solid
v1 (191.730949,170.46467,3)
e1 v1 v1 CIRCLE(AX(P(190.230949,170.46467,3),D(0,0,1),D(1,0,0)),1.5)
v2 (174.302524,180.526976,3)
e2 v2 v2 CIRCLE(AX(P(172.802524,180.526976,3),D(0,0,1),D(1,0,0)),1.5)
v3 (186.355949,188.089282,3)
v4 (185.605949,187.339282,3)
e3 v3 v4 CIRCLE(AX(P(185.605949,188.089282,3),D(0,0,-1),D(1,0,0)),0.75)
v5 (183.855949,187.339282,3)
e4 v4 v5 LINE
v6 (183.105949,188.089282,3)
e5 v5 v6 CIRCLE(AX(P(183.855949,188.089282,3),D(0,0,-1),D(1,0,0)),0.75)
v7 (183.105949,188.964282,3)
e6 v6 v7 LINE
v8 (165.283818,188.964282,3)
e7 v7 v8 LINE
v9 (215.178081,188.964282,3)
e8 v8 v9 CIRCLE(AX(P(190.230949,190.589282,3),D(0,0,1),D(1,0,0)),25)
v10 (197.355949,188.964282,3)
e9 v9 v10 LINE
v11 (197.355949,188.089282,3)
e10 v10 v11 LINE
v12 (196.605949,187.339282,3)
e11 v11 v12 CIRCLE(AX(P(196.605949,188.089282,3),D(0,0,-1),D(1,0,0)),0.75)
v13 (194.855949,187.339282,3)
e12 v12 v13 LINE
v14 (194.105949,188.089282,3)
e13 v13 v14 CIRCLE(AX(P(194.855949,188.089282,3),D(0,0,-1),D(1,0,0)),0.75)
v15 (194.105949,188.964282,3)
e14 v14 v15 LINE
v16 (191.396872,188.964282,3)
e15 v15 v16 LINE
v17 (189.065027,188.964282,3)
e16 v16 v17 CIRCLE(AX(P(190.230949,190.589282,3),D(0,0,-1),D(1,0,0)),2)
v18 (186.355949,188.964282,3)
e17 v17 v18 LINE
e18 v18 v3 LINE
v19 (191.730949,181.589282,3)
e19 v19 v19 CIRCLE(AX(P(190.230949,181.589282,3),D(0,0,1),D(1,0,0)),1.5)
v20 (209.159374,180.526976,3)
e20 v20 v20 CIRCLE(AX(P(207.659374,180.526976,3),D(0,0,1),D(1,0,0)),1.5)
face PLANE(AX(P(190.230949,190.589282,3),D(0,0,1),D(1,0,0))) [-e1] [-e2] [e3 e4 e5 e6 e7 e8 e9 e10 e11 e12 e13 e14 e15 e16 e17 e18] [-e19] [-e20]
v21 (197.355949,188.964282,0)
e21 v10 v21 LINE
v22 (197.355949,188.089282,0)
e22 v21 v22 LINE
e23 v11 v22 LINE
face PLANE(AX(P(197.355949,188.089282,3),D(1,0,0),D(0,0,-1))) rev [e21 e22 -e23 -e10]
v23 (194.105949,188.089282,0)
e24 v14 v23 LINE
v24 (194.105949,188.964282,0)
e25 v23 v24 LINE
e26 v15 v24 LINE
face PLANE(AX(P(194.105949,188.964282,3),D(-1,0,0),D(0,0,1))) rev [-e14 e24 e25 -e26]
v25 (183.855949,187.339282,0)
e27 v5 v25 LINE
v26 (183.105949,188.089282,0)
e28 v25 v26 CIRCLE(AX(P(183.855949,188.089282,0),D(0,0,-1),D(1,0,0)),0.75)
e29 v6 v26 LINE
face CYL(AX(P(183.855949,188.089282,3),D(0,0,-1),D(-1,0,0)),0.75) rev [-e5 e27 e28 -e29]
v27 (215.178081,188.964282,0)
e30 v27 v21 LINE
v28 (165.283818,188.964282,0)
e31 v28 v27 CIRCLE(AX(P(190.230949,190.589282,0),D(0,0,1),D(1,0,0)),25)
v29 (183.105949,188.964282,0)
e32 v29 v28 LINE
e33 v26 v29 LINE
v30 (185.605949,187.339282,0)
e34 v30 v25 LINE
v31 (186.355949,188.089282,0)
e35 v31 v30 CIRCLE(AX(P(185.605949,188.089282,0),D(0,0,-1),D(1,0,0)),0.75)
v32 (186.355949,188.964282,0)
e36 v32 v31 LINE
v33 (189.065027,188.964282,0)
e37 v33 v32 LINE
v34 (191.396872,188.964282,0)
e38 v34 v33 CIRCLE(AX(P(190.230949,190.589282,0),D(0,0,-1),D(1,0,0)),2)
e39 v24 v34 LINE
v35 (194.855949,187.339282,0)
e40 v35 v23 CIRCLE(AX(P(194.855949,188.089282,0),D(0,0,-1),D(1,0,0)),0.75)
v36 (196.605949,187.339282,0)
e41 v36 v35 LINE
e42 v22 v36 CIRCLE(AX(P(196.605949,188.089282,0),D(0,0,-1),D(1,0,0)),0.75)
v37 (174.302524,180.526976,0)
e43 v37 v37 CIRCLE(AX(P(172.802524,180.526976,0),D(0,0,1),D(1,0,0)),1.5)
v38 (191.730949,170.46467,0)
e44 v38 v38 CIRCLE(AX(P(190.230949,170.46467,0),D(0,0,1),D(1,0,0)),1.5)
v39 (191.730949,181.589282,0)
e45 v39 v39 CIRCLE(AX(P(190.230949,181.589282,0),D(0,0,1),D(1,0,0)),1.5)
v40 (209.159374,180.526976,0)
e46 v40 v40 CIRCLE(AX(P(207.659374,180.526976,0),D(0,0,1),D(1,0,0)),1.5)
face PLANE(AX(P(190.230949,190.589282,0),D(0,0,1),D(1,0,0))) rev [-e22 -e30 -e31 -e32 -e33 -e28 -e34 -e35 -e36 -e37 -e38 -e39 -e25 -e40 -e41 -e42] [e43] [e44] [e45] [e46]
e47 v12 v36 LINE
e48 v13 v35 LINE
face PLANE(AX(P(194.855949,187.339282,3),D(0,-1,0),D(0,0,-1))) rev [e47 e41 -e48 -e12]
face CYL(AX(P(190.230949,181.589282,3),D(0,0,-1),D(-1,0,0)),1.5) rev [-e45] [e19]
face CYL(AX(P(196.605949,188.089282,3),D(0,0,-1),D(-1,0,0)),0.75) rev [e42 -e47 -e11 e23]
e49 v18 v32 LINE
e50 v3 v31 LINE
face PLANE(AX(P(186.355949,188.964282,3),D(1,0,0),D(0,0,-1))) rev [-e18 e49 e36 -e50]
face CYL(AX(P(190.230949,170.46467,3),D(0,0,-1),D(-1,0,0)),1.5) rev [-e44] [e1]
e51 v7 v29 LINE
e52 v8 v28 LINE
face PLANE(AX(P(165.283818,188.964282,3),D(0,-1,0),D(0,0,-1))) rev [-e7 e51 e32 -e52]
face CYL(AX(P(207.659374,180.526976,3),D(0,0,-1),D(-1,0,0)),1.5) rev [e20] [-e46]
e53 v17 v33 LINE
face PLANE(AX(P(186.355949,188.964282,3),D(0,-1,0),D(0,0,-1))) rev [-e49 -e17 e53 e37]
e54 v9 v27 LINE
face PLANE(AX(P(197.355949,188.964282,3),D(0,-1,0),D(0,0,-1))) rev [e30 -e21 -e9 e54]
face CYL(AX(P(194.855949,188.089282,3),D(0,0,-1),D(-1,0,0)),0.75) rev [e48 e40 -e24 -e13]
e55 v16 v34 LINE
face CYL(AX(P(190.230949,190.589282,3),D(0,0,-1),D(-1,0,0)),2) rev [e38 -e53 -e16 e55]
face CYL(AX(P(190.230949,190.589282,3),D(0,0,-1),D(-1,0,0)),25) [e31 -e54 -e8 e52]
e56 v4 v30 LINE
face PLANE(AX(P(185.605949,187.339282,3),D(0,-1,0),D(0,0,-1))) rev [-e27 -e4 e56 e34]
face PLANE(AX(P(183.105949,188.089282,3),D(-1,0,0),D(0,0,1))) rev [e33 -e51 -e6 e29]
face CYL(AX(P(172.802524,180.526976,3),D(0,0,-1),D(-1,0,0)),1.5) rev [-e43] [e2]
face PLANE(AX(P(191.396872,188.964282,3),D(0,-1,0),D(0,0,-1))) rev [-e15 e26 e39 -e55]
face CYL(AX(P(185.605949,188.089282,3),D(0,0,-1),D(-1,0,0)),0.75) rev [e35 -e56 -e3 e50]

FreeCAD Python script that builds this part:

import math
import FreeCAD as App
import Part
import Sketcher

doc = App.newDocument("Part")
body = doc.addObject("PartDesign::Body", "Body")

sketch1 = body.newObject("Sketcher::SketchObject", "Sketch")
sketch1.AttachmentSupport = (doc.getObject("XY_Plane"), [""])
sketch1.MapMode = "FlatFace"
sketch1.addGeometry([
    Part.LineSegment(App.Vector(194.1, 189, 0), App.Vector(191.4, 189, 0)),
    Part.ArcOfCircle(Part.Circle(App.Vector(190.2, 190.6, 0), App.Vector(0, 0, 1), 2), math.radians(-126), math.radians(-54)),
    Part.LineSegment(App.Vector(189.1, 189, 0), App.Vector(186.4, 189, 0)),
    Part.LineSegment(App.Vector(186.4, 189, 0), App.Vector(186.4, 188.1, 0)),
    Part.ArcOfCircle(Part.Circle(App.Vector(185.6, 188.1, 0), App.Vector(0, 0, 1), 0.8), math.radians(-90), math.radians(0)),
    Part.LineSegment(App.Vector(185.6, 187.3, 0), App.Vector(183.9, 187.3, 0)),
    Part.ArcOfCircle(Part.Circle(App.Vector(183.9, 188.1, 0), App.Vector(0, 0, 1), 0.8), math.radians(180), math.radians(270)),
    Part.LineSegment(App.Vector(183.1, 188.1, 0), App.Vector(183.1, 189, 0)),
    Part.LineSegment(App.Vector(183.1, 189, 0), App.Vector(165.3, 189, 0)),
    Part.ArcOfCircle(Part.Circle(App.Vector(190.2, 190.6, 0), App.Vector(0, 0, 1), 25), math.radians(-176), math.radians(-83)),
    Part.ArcOfCircle(Part.Circle(App.Vector(190.2, 190.6, 0), App.Vector(0, 0, 1), 25), math.radians(-83), math.radians(-4)),
    Part.LineSegment(App.Vector(215.2, 189, 0), App.Vector(197.4, 189, 0)),
    Part.LineSegment(App.Vector(197.4, 189, 0), App.Vector(197.4, 188.1, 0)),
    Part.ArcOfCircle(Part.Circle(App.Vector(196.6, 188.1, 0), App.Vector(0, 0, 1), 0.8), math.radians(-90), math.radians(0)),
    Part.LineSegment(App.Vector(196.6, 187.3, 0), App.Vector(194.9, 187.3, 0)),
    Part.ArcOfCircle(Part.Circle(App.Vector(194.9, 188.1, 0), App.Vector(0, 0, 1), 0.8), math.radians(180), math.radians(270)),
    Part.LineSegment(App.Vector(194.1, 188.1, 0), App.Vector(194.1, 189, 0)),
    Part.Circle(App.Vector(190.2, 170.5, 0), App.Vector(0, 0, 1), 1.5),
    Part.Circle(App.Vector(207.7, 180.5, 0), App.Vector(0, 0, 1), 1.5),
    Part.Circle(App.Vector(190.2, 181.6, 0), App.Vector(0, 0, 1), 1.5),
    Part.Circle(App.Vector(172.8, 180.5, 0), App.Vector(0, 0, 1), 1.5),
], False)
sketch1.addConstraint([
    Sketcher.Constraint("Coincident", 0, 2, 1, 2),
    Sketcher.Constraint("Coincident", 1, 1, 2, 1),
    Sketcher.Constraint("Coincident", 2, 2, 3, 1),
    Sketcher.Constraint("Tangent", 3, 2, 4, 2),
    Sketcher.Constraint("Tangent", 4, 1, 5, 1),
    Sketcher.Constraint("Tangent", 5, 2, 6, 2),
    Sketcher.Constraint("Tangent", 6, 1, 7, 1),
    Sketcher.Constraint("Coincident", 7, 2, 8, 1),
    Sketcher.Constraint("Coincident", 8, 2, 9, 1),
    Sketcher.Constraint("Tangent", 9, 2, 10, 1),
    Sketcher.Constraint("Coincident", 10, 2, 11, 1),
    Sketcher.Constraint("Coincident", 11, 2, 12, 1),
    Sketcher.Constraint("Tangent", 12, 2, 13, 2),
    Sketcher.Constraint("Tangent", 13, 1, 14, 1),
    Sketcher.Constraint("Tangent", 14, 2, 15, 2),
    Sketcher.Constraint("Tangent", 15, 1, 16, 1),
    Sketcher.Constraint("Coincident", 16, 2, 0, 1),
    Sketcher.Constraint("Horizontal", 0),
    Sketcher.Constraint("Horizontal", 2),
    Sketcher.Constraint("Vertical", 3),
    Sketcher.Constraint("Horizontal", 5),
    Sketcher.Constraint("Vertical", 7),
    Sketcher.Constraint("Horizontal", 8),
    Sketcher.Constraint("Horizontal", 11),
    Sketcher.Constraint("Vertical", 12),
    Sketcher.Constraint("Horizontal", 14),
    Sketcher.Constraint("Vertical", 16),
    Sketcher.Constraint("Coincident", 9, 3, 1, 3),
    Sketcher.Constraint("Equal", 4, 6),
    Sketcher.Constraint("Equal", 9, 10),
    Sketcher.Constraint("Equal", 6, 13),
    Sketcher.Constraint("Equal", 13, 15),
    Sketcher.Constraint("Equal", 17, 18),
    Sketcher.Constraint("Equal", 18, 19),
    Sketcher.Constraint("Equal", 19, 20),
    Sketcher.Constraint("Horizontal", 6, 3, 13, 3),
    Sketcher.Constraint("Horizontal", 18, 3, 20, 3),
    Sketcher.Constraint("Horizontal", 0, 2, 1, 1),
    Sketcher.Constraint("Horizontal", 2, 2, 7, 2),
    Sketcher.Constraint("Horizontal", 8, 2, 10, 2),
    Sketcher.Constraint("Vertical", 10, 3, 17, 3),
    Sketcher.Constraint("Vertical", 17, 3, 19, 3),
    Sketcher.Constraint("Equal", 0, 2),
    Sketcher.Constraint("Equal", 8, 11),
    Sketcher.Constraint("Diameter", 17, 3.0),
    Sketcher.Constraint("Radius", 1, 2.0),
    Sketcher.Constraint("Radius", 9, 25.0),
    Sketcher.Constraint("Radius", 4, 0.75),
    Sketcher.Constraint("DistanceX", 4, 3, 13, 3, 11.0),
    Sketcher.Constraint("DistanceY", 19, 3, 1, 3, 9.0),
    Sketcher.Constraint("DistanceX", 5, 2, 5, 1, 1.75),
    Sketcher.Constraint("DistanceY", 4, 3, 1, 3, 2.5),
    Sketcher.Constraint("DistanceY", 3, 2, 3, 1, 0.875),
    Sketcher.Constraint("DistanceX", 17, 3, 9, 2, 3.25),
    Sketcher.Constraint("DistanceX", -1, 1, 1, 3, 190.230949),
    Sketcher.Constraint("DistanceY", -1, 1, 1, 3, 190.589282),
    Sketcher.Constraint("DistanceY", -1, 1, 17, 3, 170.46467),
    Sketcher.Constraint("DistanceX", -1, 1, 18, 3, 207.659374),
    Sketcher.Constraint("DistanceY", -1, 1, 18, 3, 180.526976),
    Sketcher.Constraint("DistanceX", -1, 1, 20, 3, 172.802524),
])
pad1 = body.newObject("PartDesign::Pad", "Pad")
pad1.Profile = sketch1
pad1.Length = 3

doc.recompute()
